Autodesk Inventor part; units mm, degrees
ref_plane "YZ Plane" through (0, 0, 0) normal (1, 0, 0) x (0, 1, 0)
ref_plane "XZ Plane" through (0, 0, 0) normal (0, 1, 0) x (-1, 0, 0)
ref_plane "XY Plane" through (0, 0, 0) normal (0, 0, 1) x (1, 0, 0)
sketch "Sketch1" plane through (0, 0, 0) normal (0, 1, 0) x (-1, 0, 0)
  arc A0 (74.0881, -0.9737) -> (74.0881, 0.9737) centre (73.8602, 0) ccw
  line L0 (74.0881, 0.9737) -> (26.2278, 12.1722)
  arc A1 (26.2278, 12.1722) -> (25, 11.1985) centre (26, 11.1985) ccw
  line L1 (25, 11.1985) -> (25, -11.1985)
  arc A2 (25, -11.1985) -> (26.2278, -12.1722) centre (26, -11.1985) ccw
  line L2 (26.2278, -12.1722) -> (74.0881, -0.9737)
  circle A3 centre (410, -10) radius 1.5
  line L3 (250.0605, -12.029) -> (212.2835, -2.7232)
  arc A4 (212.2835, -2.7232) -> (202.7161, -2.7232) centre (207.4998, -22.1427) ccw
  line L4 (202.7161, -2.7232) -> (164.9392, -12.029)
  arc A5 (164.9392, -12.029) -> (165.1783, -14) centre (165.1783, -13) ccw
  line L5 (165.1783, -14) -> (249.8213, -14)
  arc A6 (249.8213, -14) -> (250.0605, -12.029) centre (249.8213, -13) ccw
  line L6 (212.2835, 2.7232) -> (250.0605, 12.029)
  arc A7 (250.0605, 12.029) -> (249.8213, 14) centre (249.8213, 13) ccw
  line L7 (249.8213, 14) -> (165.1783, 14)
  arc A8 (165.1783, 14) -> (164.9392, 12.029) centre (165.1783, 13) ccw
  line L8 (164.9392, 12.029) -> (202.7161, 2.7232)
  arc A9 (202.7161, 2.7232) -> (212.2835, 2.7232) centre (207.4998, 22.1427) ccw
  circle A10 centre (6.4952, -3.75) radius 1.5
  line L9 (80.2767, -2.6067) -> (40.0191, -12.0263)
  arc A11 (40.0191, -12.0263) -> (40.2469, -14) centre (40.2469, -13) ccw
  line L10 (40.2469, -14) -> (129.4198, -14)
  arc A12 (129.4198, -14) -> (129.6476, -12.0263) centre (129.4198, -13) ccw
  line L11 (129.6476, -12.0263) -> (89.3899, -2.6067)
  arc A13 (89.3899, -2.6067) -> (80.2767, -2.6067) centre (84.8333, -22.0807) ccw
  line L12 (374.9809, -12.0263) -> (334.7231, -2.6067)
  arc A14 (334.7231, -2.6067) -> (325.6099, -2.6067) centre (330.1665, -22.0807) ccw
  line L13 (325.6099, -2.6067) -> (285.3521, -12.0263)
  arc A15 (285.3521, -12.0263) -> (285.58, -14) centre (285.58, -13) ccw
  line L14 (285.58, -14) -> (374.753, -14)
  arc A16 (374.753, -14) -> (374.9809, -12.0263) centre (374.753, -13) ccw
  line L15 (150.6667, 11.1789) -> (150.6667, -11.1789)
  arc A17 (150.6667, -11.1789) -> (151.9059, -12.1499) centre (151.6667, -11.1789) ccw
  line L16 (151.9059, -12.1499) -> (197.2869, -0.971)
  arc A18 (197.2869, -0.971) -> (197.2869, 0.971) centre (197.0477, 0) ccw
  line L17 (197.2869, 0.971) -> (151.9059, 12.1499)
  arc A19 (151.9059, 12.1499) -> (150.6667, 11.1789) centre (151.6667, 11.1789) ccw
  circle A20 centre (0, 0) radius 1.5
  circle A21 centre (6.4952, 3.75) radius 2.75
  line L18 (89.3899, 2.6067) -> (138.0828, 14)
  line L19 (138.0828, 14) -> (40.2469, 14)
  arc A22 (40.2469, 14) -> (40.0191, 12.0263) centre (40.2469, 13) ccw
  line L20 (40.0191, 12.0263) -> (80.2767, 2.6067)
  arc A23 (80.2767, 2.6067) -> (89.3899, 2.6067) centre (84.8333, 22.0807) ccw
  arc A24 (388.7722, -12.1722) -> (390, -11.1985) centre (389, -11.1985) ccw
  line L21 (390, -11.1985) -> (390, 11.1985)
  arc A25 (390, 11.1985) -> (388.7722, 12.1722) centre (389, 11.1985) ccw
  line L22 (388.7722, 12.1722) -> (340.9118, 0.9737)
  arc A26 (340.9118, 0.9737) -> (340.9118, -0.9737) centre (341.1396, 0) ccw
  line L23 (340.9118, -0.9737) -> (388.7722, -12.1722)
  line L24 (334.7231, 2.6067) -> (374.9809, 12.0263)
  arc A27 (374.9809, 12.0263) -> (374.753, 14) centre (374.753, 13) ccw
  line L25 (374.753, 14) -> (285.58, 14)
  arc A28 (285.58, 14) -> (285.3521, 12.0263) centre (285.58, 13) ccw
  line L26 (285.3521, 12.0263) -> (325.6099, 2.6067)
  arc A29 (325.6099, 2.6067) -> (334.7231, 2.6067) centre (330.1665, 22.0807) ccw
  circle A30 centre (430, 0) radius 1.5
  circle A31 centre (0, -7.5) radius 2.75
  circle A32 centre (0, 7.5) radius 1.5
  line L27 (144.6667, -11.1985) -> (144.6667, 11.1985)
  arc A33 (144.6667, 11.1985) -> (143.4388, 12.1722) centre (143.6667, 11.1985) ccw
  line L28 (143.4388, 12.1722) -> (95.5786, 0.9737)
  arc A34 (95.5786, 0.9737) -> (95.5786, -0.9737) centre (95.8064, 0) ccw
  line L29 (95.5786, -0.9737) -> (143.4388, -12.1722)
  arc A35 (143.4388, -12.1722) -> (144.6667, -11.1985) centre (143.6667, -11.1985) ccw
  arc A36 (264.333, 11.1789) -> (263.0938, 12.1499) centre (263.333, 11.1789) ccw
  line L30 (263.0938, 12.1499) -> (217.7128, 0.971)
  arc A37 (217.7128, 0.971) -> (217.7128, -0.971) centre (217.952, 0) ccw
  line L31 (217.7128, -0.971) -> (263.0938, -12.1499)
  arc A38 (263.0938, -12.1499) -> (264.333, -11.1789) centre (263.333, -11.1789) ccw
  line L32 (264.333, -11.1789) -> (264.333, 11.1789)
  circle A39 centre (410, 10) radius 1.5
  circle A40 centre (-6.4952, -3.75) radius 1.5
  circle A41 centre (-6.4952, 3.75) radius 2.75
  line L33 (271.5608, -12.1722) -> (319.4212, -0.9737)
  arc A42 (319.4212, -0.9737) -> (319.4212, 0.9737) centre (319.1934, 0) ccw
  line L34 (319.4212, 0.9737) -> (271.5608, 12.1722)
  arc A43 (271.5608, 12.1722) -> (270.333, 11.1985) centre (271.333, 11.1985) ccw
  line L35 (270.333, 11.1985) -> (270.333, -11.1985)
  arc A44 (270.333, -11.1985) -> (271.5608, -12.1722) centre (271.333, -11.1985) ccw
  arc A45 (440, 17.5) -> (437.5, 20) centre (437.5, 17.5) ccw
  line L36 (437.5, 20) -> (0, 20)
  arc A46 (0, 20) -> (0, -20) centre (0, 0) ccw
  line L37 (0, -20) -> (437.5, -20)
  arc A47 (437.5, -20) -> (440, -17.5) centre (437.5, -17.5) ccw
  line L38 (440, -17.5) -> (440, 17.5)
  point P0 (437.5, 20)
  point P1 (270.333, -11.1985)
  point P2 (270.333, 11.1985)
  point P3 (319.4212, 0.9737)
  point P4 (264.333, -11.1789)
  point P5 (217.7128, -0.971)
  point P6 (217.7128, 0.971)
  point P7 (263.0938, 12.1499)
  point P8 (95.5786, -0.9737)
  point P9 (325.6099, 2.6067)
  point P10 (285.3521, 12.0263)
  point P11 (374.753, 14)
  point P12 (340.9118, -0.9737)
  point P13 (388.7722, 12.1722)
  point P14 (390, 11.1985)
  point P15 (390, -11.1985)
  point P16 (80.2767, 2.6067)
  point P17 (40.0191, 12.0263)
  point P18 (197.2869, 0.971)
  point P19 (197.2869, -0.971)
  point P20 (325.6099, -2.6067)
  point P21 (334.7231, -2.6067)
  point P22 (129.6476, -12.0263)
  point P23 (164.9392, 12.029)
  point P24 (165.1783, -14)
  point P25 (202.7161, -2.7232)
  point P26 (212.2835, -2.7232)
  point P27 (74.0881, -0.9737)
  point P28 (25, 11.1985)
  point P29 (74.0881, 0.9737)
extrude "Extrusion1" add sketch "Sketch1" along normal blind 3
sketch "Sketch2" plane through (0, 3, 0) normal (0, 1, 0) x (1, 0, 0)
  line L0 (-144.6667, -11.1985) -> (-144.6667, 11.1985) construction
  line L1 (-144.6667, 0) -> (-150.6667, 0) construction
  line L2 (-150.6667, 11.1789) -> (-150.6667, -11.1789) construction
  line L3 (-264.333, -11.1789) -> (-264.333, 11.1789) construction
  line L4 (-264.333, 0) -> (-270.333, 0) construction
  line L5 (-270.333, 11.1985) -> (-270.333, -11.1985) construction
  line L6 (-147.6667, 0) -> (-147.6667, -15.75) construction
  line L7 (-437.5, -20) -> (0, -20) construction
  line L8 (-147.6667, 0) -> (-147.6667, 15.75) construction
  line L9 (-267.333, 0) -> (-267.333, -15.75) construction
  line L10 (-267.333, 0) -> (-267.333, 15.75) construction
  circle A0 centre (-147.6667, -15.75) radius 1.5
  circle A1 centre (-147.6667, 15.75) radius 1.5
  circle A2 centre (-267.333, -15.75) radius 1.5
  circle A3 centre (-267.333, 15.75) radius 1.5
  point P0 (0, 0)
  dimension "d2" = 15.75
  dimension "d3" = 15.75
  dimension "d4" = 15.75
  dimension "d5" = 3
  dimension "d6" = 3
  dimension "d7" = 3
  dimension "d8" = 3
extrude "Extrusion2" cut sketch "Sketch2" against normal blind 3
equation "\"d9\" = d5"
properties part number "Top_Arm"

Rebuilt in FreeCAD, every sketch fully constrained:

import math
import FreeCAD as App
import Part
import Sketcher
from FreeCAD import Vector
Q = App.Units.Quantity

doc = App.newDocument("Part")
params = doc.addObject("Spreadsheet::Sheet", "Params")
for row, (alias, value) in enumerate([
    ("sketch1_diameter", "3 mm"),
    ("sketch1_radius", "20 mm"),
    ("sketch1_radius2", "1 mm"),
    ("sketch1_diameter2", "5.5 mm"),
    ("sketch1_radius3", "2.5 mm"),
    ("pad1_length", "3 mm"),
    ("sketch2_diameter", "3 mm"),
    ("pocket1_length", "3 mm"),
], start=1):
    params.set(f"A{row}", alias)
    params.set(f"B{row}", "=" + value)
    params.setAlias(f"B{row}", alias)

body = doc.addObject("PartDesign::Body", "Body")

# Sketch on XZ plane
sketch1 = doc.addObject("Sketcher::SketchObject", "Sketch")
body.addObject(sketch1)
sketch1.AttachmentSupport = (doc.XZ_Plane, [""])
sketch1.MapMode = "FlatFace"
sketch1.addGeometry([
    Part.LineSegment(Vector(-440, -17.5, 0), Vector(-440, 17.5, 0)),  # 0
    Part.ArcOfCircle(Part.Circle(Vector(-437.5, 17.5, 0), Vector(0, 0, 1), 2.5), math.radians(90), math.radians(180)),  # 1
    Part.LineSegment(Vector(-437.5, 20, 0), Vector(0, 20, 0)),  # 2
    Part.ArcOfCircle(Part.Circle(Vector(0, 0, 0), Vector(0, 0, 1), 20), math.radians(-90), math.radians(90)),  # 3
    Part.LineSegment(Vector(0, -20, 0), Vector(-437.5, -20, 0)),  # 4
    Part.ArcOfCircle(Part.Circle(Vector(-437.5, -17.5, 0), Vector(0, 0, 1), 2.5), math.radians(180), math.radians(270)),  # 5
    Part.Circle(Vector(0, -7.5, 0), Vector(0, 0, 1), 2.75),  # 6
    Part.LineSegment(Vector(-40.0191, -12.0263, 0), Vector(-80.2767, -2.6067, 0)),  # 7
    Part.ArcOfCircle(Part.Circle(Vector(-84.8333, -22.0807, 0), Vector(0, 0, 1), 19.999982), math.radians(76.83064), math.radians(103.16936)),  # 8
    Part.LineSegment(Vector(-89.3899, -2.6067, 0), Vector(-129.6476, -12.0263, 0)),  # 9
    Part.ArcOfCircle(Part.Circle(Vector(-129.4198, -13, 0), Vector(0, 0, 1), 1), math.radians(103.167687), math.radians(270)),  # 10
    Part.LineSegment(Vector(-129.4198, -14, 0), Vector(-40.2469, -14, 0)),  # 11
    Part.ArcOfCircle(Part.Circle(Vector(-40.2469, -13, 0), Vector(0, 0, 1), 0.999992), math.radians(-90), math.radians(76.832313)),  # 12
    Part.Circle(Vector(6.4952, -3.75, 0), Vector(0, 0, 1), 1.5),  # 13
    Part.Circle(Vector(-6.4952, -3.75, 0), Vector(0, 0, 1), 1.5),  # 14
    Part.ArcOfCircle(Part.Circle(Vector(-73.8602, 0, 0), Vector(0, 0, 1), 1.000015), math.radians(103.173266), math.radians(256.826734)),  # 15
    Part.LineSegment(Vector(-74.0881, -0.9737, 0), Vector(-26.2278, -12.1722, 0)),  # 16
    Part.ArcOfCircle(Part.Circle(Vector(-26, -11.1985, 0), Vector(0, 0, 1), 1), math.radians(-103.167687), math.radians(0)),  # 17
    Part.LineSegment(Vector(-25, -11.1985, 0), Vector(-25, 11.1985, 0)),  # 18
    Part.ArcOfCircle(Part.Circle(Vector(-26, 11.1985, 0), Vector(0, 0, 1), 0.999992), math.radians(0), math.radians(103.167687)),  # 19
    Part.LineSegment(Vector(-26.2278, 12.1722, 0), Vector(-74.0881, 0.9737, 0)),  # 20
    Part.LineSegment(Vector(-212.2835, -2.7232, 0), Vector(-250.0605, -12.029, 0)),  # 21
    Part.ArcOfCircle(Part.Circle(Vector(-249.8213, -13, 0), Vector(0, 0, 1), 1), math.radians(103.838922), math.radians(270)),  # 22
    Part.LineSegment(Vector(-249.8213, -14, 0), Vector(-165.1783, -14, 0)),  # 23
    Part.ArcOfCircle(Part.Circle(Vector(-165.1783, -13, 0), Vector(0, 0, 1), 1.000005), math.radians(-90), math.radians(76.166641)),  # 24
    Part.LineSegment(Vector(-164.9392, -12.029, 0), Vector(-202.7161, -2.7232, 0)),  # 25
    Part.ArcOfCircle(Part.Circle(Vector(-207.4998, -22.1427, 0), Vector(0, 0, 1), 20.000019), math.radians(76.16157), math.radians(103.83843)),  # 26
    Part.LineSegment(Vector(-144.6667, 11.1985, 0), Vector(-144.6667, -11.1985, 0)),  # 27
    Part.ArcOfCircle(Part.Circle(Vector(-143.6667, -11.1985, 0), Vector(0, 0, 1), 1.000015), math.radians(180), math.radians(283.173266)),  # 28
    Part.LineSegment(Vector(-143.4388, -12.1722, 0), Vector(-95.5786, -0.9737, 0)),  # 29
    Part.ArcOfCircle(Part.Circle(Vector(-95.8064, 0, 0), Vector(0, 0, 1), 0.999992), math.radians(-76.832313), math.radians(76.832313)),  # 30
    Part.LineSegment(Vector(-95.5786, 0.9737, 0), Vector(-143.4388, 12.1722, 0)),  # 31
    Part.ArcOfCircle(Part.Circle(Vector(-143.6667, 11.1985, 0), Vector(0, 0, 1), 1), math.radians(76.826734), math.radians(180)),  # 32
    Part.ArcOfCircle(Part.Circle(Vector(-263.333, 11.1789, 0), Vector(0, 0, 1), 1), math.radians(76.161078), math.radians(180)),  # 33
    Part.LineSegment(Vector(-264.333, 11.1789, 0), Vector(-264.333, -11.1789, 0)),  # 34
    Part.ArcOfCircle(Part.Circle(Vector(-263.333, -11.1789, 0), Vector(0, 0, 1), 1.000029), math.radians(180), math.radians(283.838922)),  # 35
    Part.LineSegment(Vector(-263.0938, -12.1499, 0), Vector(-217.7128, -0.971, 0)),  # 36
    Part.ArcOfCircle(Part.Circle(Vector(-217.952, 0, 0), Vector(0, 0, 1), 1.000029), math.radians(-76.161078), math.radians(76.161078)),  # 37
    Part.LineSegment(Vector(-217.7128, 0.971, 0), Vector(-263.0938, 12.1499, 0)),  # 38
    Part.LineSegment(Vector(-319.4212, -0.9737, 0), Vector(-271.5608, -12.1722, 0)),  # 39
    Part.ArcOfCircle(Part.Circle(Vector(-271.333, -11.1985, 0), Vector(0, 0, 1), 1), math.radians(-103.167687), math.radians(0)),  # 40
    Part.LineSegment(Vector(-270.333, -11.1985, 0), Vector(-270.333, 11.1985, 0)),  # 41
    Part.ArcOfCircle(Part.Circle(Vector(-271.333, 11.1985, 0), Vector(0, 0, 1), 0.999992), math.radians(0), math.radians(103.167687)),  # 42
    Part.LineSegment(Vector(-271.5608, 12.1722, 0), Vector(-319.4212, 0.9737, 0)),  # 43
    Part.ArcOfCircle(Part.Circle(Vector(-319.1934, 0, 0), Vector(0, 0, 1), 0.999992), math.radians(103.167687), math.radians(256.832313)),  # 44
    Part.LineSegment(Vector(-334.7231, -2.6067, 0), Vector(-374.9809, -12.0263, 0)),  # 45
    Part.ArcOfCircle(Part.Circle(Vector(-374.753, -13, 0), Vector(0, 0, 1), 1), math.radians(103.173266), math.radians(270)),  # 46
    Part.LineSegment(Vector(-374.753, -14, 0), Vector(-285.58, -14, 0)),  # 47
    Part.ArcOfCircle(Part.Circle(Vector(-285.58, -13, 0), Vector(0, 0, 1), 1.000015), math.radians(-90), math.radians(76.826734)),  # 48
    Part.LineSegment(Vector(-285.3521, -12.0263, 0), Vector(-325.6099, -2.6067, 0)),  # 49
    Part.ArcOfCircle(Part.Circle(Vector(-330.1665, -22.0807, 0), Vector(0, 0, 1), 19.999982), math.radians(76.83064), math.radians(103.16936)),  # 50
    Part.Circle(Vector(-410, -10, 0), Vector(0, 0, 1), 1.5),  # 51
    Part.Circle(Vector(0, 0, 0), Vector(0, 0, 1), 1.5),  # 52
    Part.Circle(Vector(6.4952, 3.75, 0), Vector(0, 0, 1), 2.75),  # 53
    Part.Circle(Vector(-6.4952, 3.75, 0), Vector(0, 0, 1), 2.75),  # 54
    Part.Circle(Vector(0, 7.5, 0), Vector(0, 0, 1), 1.5),  # 55
    Part.LineSegment(Vector(-138.0828, 14, 0), Vector(-89.3899, 2.6067, 0)),  # 56
    Part.ArcOfCircle(Part.Circle(Vector(-84.8333, 22.0807, 0), Vector(0, 0, 1), 19.999982), math.radians(-103.16936), math.radians(-76.83064)),  # 57
    Part.LineSegment(Vector(-80.2767, 2.6067, 0), Vector(-40.0191, 12.0263, 0)),  # 58
    Part.ArcOfCircle(Part.Circle(Vector(-40.2469, 13, 0), Vector(0, 0, 1), 1), math.radians(-76.832313), math.radians(90)),  # 59
    Part.LineSegment(Vector(-40.2469, 14, 0), Vector(-138.0828, 14, 0)),  # 60
    Part.LineSegment(Vector(-150.6667, -11.1789, 0), Vector(-150.6667, 11.1789, 0)),  # 61
    Part.ArcOfCircle(Part.Circle(Vector(-151.6667, 11.1789, 0), Vector(0, 0, 1), 1.000029), math.radians(0), math.radians(103.838922)),  # 62
    Part.LineSegment(Vector(-151.9059, 12.1499, 0), Vector(-197.2869, 0.971, 0)),  # 63
    Part.ArcOfCircle(Part.Circle(Vector(-197.0477, 0, 0), Vector(0, 0, 1), 1.000029), math.radians(103.838922), math.radians(256.161078)),  # 64
    Part.LineSegment(Vector(-197.2869, -0.971, 0), Vector(-151.9059, -12.1499, 0)),  # 65
    Part.ArcOfCircle(Part.Circle(Vector(-151.6667, -11.1789, 0), Vector(0, 0, 1), 1), math.radians(-103.838922), math.radians(0)),  # 66
    Part.LineSegment(Vector(-250.0605, 12.029, 0), Vector(-212.2835, 2.7232, 0)),  # 67
    Part.ArcOfCircle(Part.Circle(Vector(-207.4998, 22.1427, 0), Vector(0, 0, 1), 20.000019), math.radians(-103.83843), math.radians(-76.16157)),  # 68
    Part.LineSegment(Vector(-202.7161, 2.7232, 0), Vector(-164.9392, 12.029, 0)),  # 69
    Part.ArcOfCircle(Part.Circle(Vector(-165.1783, 13, 0), Vector(0, 0, 1), 1), math.radians(-76.166641), math.radians(90)),  # 70
    Part.LineSegment(Vector(-165.1783, 14, 0), Vector(-249.8213, 14, 0)),  # 71
    Part.ArcOfCircle(Part.Circle(Vector(-249.8213, 13, 0), Vector(0, 0, 1), 1.000029), math.radians(90), math.radians(256.161078)),  # 72
    Part.ArcOfCircle(Part.Circle(Vector(-389, -11.1985, 0), Vector(0, 0, 1), 0.999992), math.radians(180), math.radians(283.167687)),  # 73
    Part.LineSegment(Vector(-388.7722, -12.1722, 0), Vector(-340.9118, -0.9737, 0)),  # 74
    Part.ArcOfCircle(Part.Circle(Vector(-341.1396, 0, 0), Vector(0, 0, 1), 0.999992), math.radians(-76.832313), math.radians(76.832313)),  # 75
    Part.LineSegment(Vector(-340.9118, 0.9737, 0), Vector(-388.7722, 12.1722, 0)),  # 76
    Part.ArcOfCircle(Part.Circle(Vector(-389, 11.1985, 0), Vector(0, 0, 1), 1), math.radians(76.832313), math.radians(180)),  # 77
    Part.LineSegment(Vector(-390, 11.1985, 0), Vector(-390, -11.1985, 0)),  # 78
    Part.Circle(Vector(-430, 0, 0), Vector(0, 0, 1), 1.5),  # 79
    Part.LineSegment(Vector(-374.9809, 12.0263, 0), Vector(-334.7231, 2.6067, 0)),  # 80
    Part.ArcOfCircle(Part.Circle(Vector(-330.1665, 22.0807, 0), Vector(0, 0, 1), 19.999982), math.radians(-103.16936), math.radians(-76.83064)),  # 81
    Part.LineSegment(Vector(-325.6099, 2.6067, 0), Vector(-285.3521, 12.0263, 0)),  # 82
    Part.ArcOfCircle(Part.Circle(Vector(-285.58, 13, 0), Vector(0, 0, 1), 1), math.radians(-76.826734), math.radians(90)),  # 83
    Part.LineSegment(Vector(-285.58, 14, 0), Vector(-374.753, 14, 0)),  # 84
    Part.ArcOfCircle(Part.Circle(Vector(-374.753, 13, 0), Vector(0, 0, 1), 1.000015), math.radians(90), math.radians(256.826734)),  # 85
    Part.Circle(Vector(-410, 10, 0), Vector(0, 0, 1), 1.5),  # 86
], False)
sketch1.addConstraint([
    Sketcher.Constraint("Tangent", 0, 2, 1, 2),
    Sketcher.Constraint("Tangent", 1, 1, 2, 1),
    Sketcher.Constraint("Tangent", 2, 2, 3, 2),
    Sketcher.Constraint("Tangent", 3, 1, 4, 1),
    Sketcher.Constraint("Tangent", 4, 2, 5, 2),
    Sketcher.Constraint("Tangent", 5, 1, 0, 1),
    Sketcher.Constraint("Tangent", 7, 2, 8, 1),
    Sketcher.Constraint("Tangent", 8, 2, 9, 1),
    Sketcher.Constraint("Tangent", 9, 2, 10, 1),
    Sketcher.Constraint("Tangent", 10, 2, 11, 1),
    Sketcher.Constraint("Tangent", 11, 2, 12, 1),
    Sketcher.Constraint("Tangent", 12, 2, 7, 1),
    Sketcher.Constraint("Tangent", 15, 2, 16, 1),
    Sketcher.Constraint("Tangent", 16, 2, 17, 1),
    Sketcher.Constraint("Tangent", 17, 2, 18, 1),
    Sketcher.Constraint("Tangent", 18, 2, 19, 1),
    Sketcher.Constraint("Tangent", 19, 2, 20, 1),
    Sketcher.Constraint("Tangent", 20, 2, 15, 1),
    Sketcher.Constraint("Tangent", 21, 2, 22, 1),
    Sketcher.Constraint("Tangent", 22, 2, 23, 1),
    Sketcher.Constraint("Tangent", 23, 2, 24, 1),
    Sketcher.Constraint("Tangent", 24, 2, 25, 1),
    Sketcher.Constraint("Tangent", 25, 2, 26, 1),
    Sketcher.Constraint("Tangent", 26, 2, 21, 1),
    Sketcher.Constraint("Tangent", 27, 2, 28, 1),
    Sketcher.Constraint("Tangent", 28, 2, 29, 1),
    Sketcher.Constraint("Tangent", 29, 2, 30, 1),
    Sketcher.Constraint("Tangent", 30, 2, 31, 1),
    Sketcher.Constraint("Tangent", 31, 2, 32, 1),
    Sketcher.Constraint("Tangent", 32, 2, 27, 1),
    Sketcher.Constraint("Tangent", 33, 2, 34, 1),
    Sketcher.Constraint("Tangent", 34, 2, 35, 1),
    Sketcher.Constraint("Tangent", 35, 2, 36, 1),
    Sketcher.Constraint("Tangent", 36, 2, 37, 1),
    Sketcher.Constraint("Tangent", 37, 2, 38, 1),
    Sketcher.Constraint("Tangent", 38, 2, 33, 1),
    Sketcher.Constraint("Tangent", 39, 2, 40, 1),
    Sketcher.Constraint("Tangent", 40, 2, 41, 1),
    Sketcher.Constraint("Tangent", 41, 2, 42, 1),
    Sketcher.Constraint("Tangent", 42, 2, 43, 1),
    Sketcher.Constraint("Tangent", 43, 2, 44, 1),
    Sketcher.Constraint("Tangent", 44, 2, 39, 1),
    Sketcher.Constraint("Tangent", 45, 2, 46, 1),
    Sketcher.Constraint("Tangent", 46, 2, 47, 1),
    Sketcher.Constraint("Tangent", 47, 2, 48, 1),
    Sketcher.Constraint("Tangent", 48, 2, 49, 1),
    Sketcher.Constraint("Tangent", 49, 2, 50, 1),
    Sketcher.Constraint("Tangent", 50, 2, 45, 1),
    Sketcher.Constraint("Tangent", 56, 2, 57, 1),
    Sketcher.Constraint("Tangent", 57, 2, 58, 1),
    Sketcher.Constraint("Tangent", 58, 2, 59, 1),
    Sketcher.Constraint("Tangent", 59, 2, 60, 1),
    Sketcher.Constraint("Coincident", 60, 2, 56, 1),
    Sketcher.Constraint("Tangent", 61, 2, 62, 1),
    Sketcher.Constraint("Tangent", 62, 2, 63, 1),
    Sketcher.Constraint("Tangent", 63, 2, 64, 1),
    Sketcher.Constraint("Tangent", 64, 2, 65, 1),
    Sketcher.Constraint("Tangent", 65, 2, 66, 1),
    Sketcher.Constraint("Tangent", 66, 2, 61, 1),
    Sketcher.Constraint("Tangent", 67, 2, 68, 1),
    Sketcher.Constraint("Tangent", 68, 2, 69, 1),
    Sketcher.Constraint("Tangent", 69, 2, 70, 1),
    Sketcher.Constraint("Tangent", 70, 2, 71, 1),
    Sketcher.Constraint("Tangent", 71, 2, 72, 1),
    Sketcher.Constraint("Tangent", 72, 2, 67, 1),
    Sketcher.Constraint("Tangent", 73, 2, 74, 1),
    Sketcher.Constraint("Tangent", 74, 2, 75, 1),
    Sketcher.Constraint("Tangent", 75, 2, 76, 1),
    Sketcher.Constraint("Tangent", 76, 2, 77, 1),
    Sketcher.Constraint("Tangent", 77, 2, 78, 1),
    Sketcher.Constraint("Tangent", 78, 2, 73, 1),
    Sketcher.Constraint("Tangent", 80, 2, 81, 1),
    Sketcher.Constraint("Tangent", 81, 2, 82, 1),
    Sketcher.Constraint("Tangent", 82, 2, 83, 1),
    Sketcher.Constraint("Tangent", 83, 2, 84, 1),
    Sketcher.Constraint("Tangent", 84, 2, 85, 1),
    Sketcher.Constraint("Tangent", 85, 2, 80, 1),
    Sketcher.Constraint("Vertical", 0),
    Sketcher.Constraint("Horizontal", 2),
    Sketcher.Constraint("Horizontal", 4),
    Sketcher.Constraint("Horizontal", 11),
    Sketcher.Constraint("Vertical", 18),
    Sketcher.Constraint("Horizontal", 23),
    Sketcher.Constraint("Vertical", 27),
    Sketcher.Constraint("Vertical", 34),
    Sketcher.Constraint("Vertical", 41),
    Sketcher.Constraint("Horizontal", 47),
    Sketcher.Constraint("Horizontal", 60),
    Sketcher.Constraint("Vertical", 61),
    Sketcher.Constraint("Horizontal", 71),
    Sketcher.Constraint("Vertical", 78),
    Sketcher.Constraint("Horizontal", 84),
    Sketcher.Constraint("Coincident", 3, 3, -1, 1),
    Sketcher.Constraint("Coincident", 52, 3, -1, 1),
    Sketcher.Constraint("Equal", 1, 5),
    Sketcher.Constraint("Equal", 3, 8),
    Sketcher.Constraint("Equal", 10, 12),
    Sketcher.Constraint("Equal", 13, 14),
    Sketcher.Constraint("Equal", 12, 15),
    Sketcher.Constraint("Equal", 15, 17),
    Sketcher.Constraint("Equal", 17, 19),
    Sketcher.Constraint("Equal", 19, 22),
    Sketcher.Constraint("Equal", 22, 24),
    Sketcher.Constraint("Equal", 8, 26),
    Sketcher.Constraint("Equal", 24, 28),
    Sketcher.Constraint("Equal", 28, 30),
    Sketcher.Constraint("Equal", 30, 32),
    Sketcher.Constraint("Equal", 32, 33),
    Sketcher.Constraint("Equal", 33, 35),
    Sketcher.Constraint("Equal", 35, 37),
    Sketcher.Constraint("Equal", 37, 40),
    Sketcher.Constraint("Equal", 40, 42),
    Sketcher.Constraint("Equal", 42, 44),
    Sketcher.Constraint("Equal", 44, 46),
    Sketcher.Constraint("Equal", 46, 48),
    Sketcher.Constraint("Equal", 26, 50),
    Sketcher.Constraint("Equal", 14, 51),
    Sketcher.Constraint("Equal", 51, 52),
    Sketcher.Constraint("Equal", 6, 53),
    Sketcher.Constraint("Equal", 53, 54),
    Sketcher.Constraint("Equal", 52, 55),
    Sketcher.Constraint("Equal", 50, 57),
    Sketcher.Constraint("Equal", 48, 59),
    Sketcher.Constraint("Equal", 59, 62),
    Sketcher.Constraint("Equal", 62, 64),
    Sketcher.Constraint("Equal", 64, 66),
    Sketcher.Constraint("Equal", 57, 68),
    Sketcher.Constraint("Equal", 66, 70),
    Sketcher.Constraint("Equal", 70, 72),
    Sketcher.Constraint("Equal", 72, 73),
    Sketcher.Constraint("Equal", 73, 75),
    Sketcher.Constraint("Equal", 75, 77),
    Sketcher.Constraint("Equal", 55, 79),
    Sketcher.Constraint("Equal", 68, 81),
    Sketcher.Constraint("Equal", 77, 83),
    Sketcher.Constraint("Equal", 83, 85),
    Sketcher.Constraint("Equal", 79, 86),
    Sketcher.Constraint("Symmetric", 14, 3, 53, 3, -1, 1),
    Sketcher.Constraint("Symmetric", 13, 3, 54, 3, -1, 1),
    Sketcher.Constraint("Symmetric", 6, 3, 55, 3, -1, 1),
    Sketcher.Constraint("Symmetric", 13, 3, 14, 3, -2),
    Sketcher.Constraint("Symmetric", 8, 3, 57, 3, -1),
    Sketcher.Constraint("Symmetric", 12, 3, 59, 3, -1),
    Sketcher.Constraint("Symmetric", 26, 3, 68, 3, -1),
    Sketcher.Constraint("Symmetric", 24, 3, 70, 3, -1),
    Sketcher.Constraint("Symmetric", 50, 3, 81, 3, -1),
    Sketcher.Constraint("Symmetric", 48, 3, 83, 3, -1),
    Sketcher.Constraint("Symmetric", 51, 3, 86, 3, -1),
    Sketcher.Constraint("Symmetric", 16, 2, 19, 2, -1),
    Sketcher.Constraint("Symmetric", 29, 2, 30, 2, -1),
    Sketcher.Constraint("Symmetric", 36, 2, 37, 2, -1),
    Sketcher.Constraint("Symmetric", 39, 2, 42, 2, -1),
    Sketcher.Constraint("Symmetric", 63, 2, 64, 2, -1),
    Sketcher.Constraint("Symmetric", 74, 2, 75, 2, -1),
    Sketcher.Constraint("PointOnObject", 6, 3, -2),
    Sketcher.Constraint("PointOnObject", 79, 3, -1),
    Sketcher.Constraint("Parallel", 7, 16),
    Sketcher.Constraint("Parallel", 9, 20),
    Sketcher.Constraint("Parallel", 20, 29),
    Sketcher.Constraint("Parallel", 21, 36),
    Sketcher.Constraint("Parallel", 25, 38),
    Sketcher.Constraint("Parallel", 31, 39),
    Sketcher.Constraint("Parallel", 43, 45),
    Sketcher.Constraint("Parallel", 39, 49),
    Sketcher.Constraint("Parallel", 49, 56),
    Sketcher.Constraint("Parallel", 36, 63),
    Sketcher.Constraint("Parallel", 65, 67),
    Sketcher.Constraint("Parallel", 58, 74),
    Sketcher.Constraint("Parallel", 76, 80),
    Sketcher.Constraint("Horizontal", 12, 3, 22, 3),
    Sketcher.Constraint("Horizontal", 17, 3, 28, 3),
    Sketcher.Constraint("Horizontal", 28, 3, 40, 3),
    Sketcher.Constraint("Horizontal", 24, 3, 46, 3),
    Sketcher.Constraint("Horizontal", 8, 3, 50, 3),
    Sketcher.Constraint("Horizontal", 33, 3, 62, 3),
    Sketcher.Constraint("Horizontal", 40, 3, 73, 3),
    Sketcher.Constraint("Diameter", 13, 3.0),
    Sketcher.Constraint("Radius", 3, 20.0),
    Sketcher.Constraint("Radius", 10, 1.0),
    Sketcher.Constraint("Diameter", 6, 5.5),
    Sketcher.Constraint("Radius", 1, 2.5),
    Sketcher.Constraint("DistanceX", 2, 1, 2, 2, 437.5),
    Sketcher.Constraint("DistanceY", 10, 3, -1, 1, 13.0),
    Sketcher.Constraint("DistanceX", 17, 3, -1, 1, 26.0),
    Sketcher.Constraint("DistanceX", 51, 3, -1, 1, 410.0),
    Sketcher.Constraint("DistanceY", 51, 3, -1, 1, 10.0),
    Sketcher.Constraint("DistanceX", 73, 3, -1, 1, 389.0),
    Sketcher.Constraint("DistanceX", 79, 3, -1, 1, 430.0),
    Sketcher.Constraint("DistanceY", 6, 3, -1, 1, 7.5),
    Sketcher.Constraint("Angle", 7, Q("166.8307 deg")),
    Sketcher.Constraint("DistanceX", 11, 1, 11, 2, 89.173),
    Sketcher.Constraint("DistanceX", 23, 1, 23, 2, 84.643),
    Sketcher.Constraint("DistanceY", 18, 1, 18, 2, 22.397),
    Sketcher.Constraint("DistanceY", 13, 3, -1, 1, 3.75),
    Sketcher.Constraint("DistanceX", 48, 3, -1, 1, 285.58),
    Sketcher.Constraint("DistanceX", 8, 2, -1, 1, 89.39),
    Sketcher.Constraint("DistanceY", 35, 2, -1, 1, 12.15),
    Sketcher.Constraint("DistanceX", 33, 3, -1, 1, 263.333),
    Sketcher.Constraint("DistanceX", 37, 3, -1, 1, 217.952),
    Sketcher.Constraint("DistanceX", 40, 3, -1, 1, 271.333),
    Sketcher.Constraint("DistanceX", 25, 2, -1, 1, 202.716),
    Sketcher.Constraint("DistanceX", 62, 2, -1, 1, 151.906),
    Sketcher.Constraint("DistanceX", -1, 1, 13, 3, 6.4952),
    Sketcher.Constraint("DistanceX", 28, 3, -1, 1, 143.6667),
])
sketch1.setExpression("Constraints[176]", "Params.sketch1_diameter")
sketch1.setExpression("Constraints[177]", "Params.sketch1_radius")
sketch1.setExpression("Constraints[178]", "Params.sketch1_radius2")
sketch1.setExpression("Constraints[179]", "Params.sketch1_diameter2")
sketch1.setExpression("Constraints[180]", "Params.sketch1_radius3")
pad1 = doc.addObject("PartDesign::Pad", "Pad")
body.addObject(pad1)
pad1.Profile = sketch1
pad1.setExpression("Length", "Params.pad1_length")
pad1.Reversed = True

# Sketch on XZ plane
sketch2 = doc.addObject("Sketcher::SketchObject", "Sketch001")
body.addObject(sketch2)
sketch2.AttachmentSupport = (doc.XZ_Plane, [""])
sketch2.MapMode = "FlatFace"
sketch2.AttachmentOffset = App.Placement(Vector(0, 0, -3), App.Rotation())
sketch2.addGeometry([
    Part.Circle(Vector(-147.6667, 15.75, 0), Vector(0, 0, 1), 1.5),
    Part.Circle(Vector(-147.6667, -15.75, 0), Vector(0, 0, 1), 1.5),
    Part.Circle(Vector(-267.333, 15.75, 0), Vector(0, 0, 1), 1.5),
    Part.Circle(Vector(-267.333, -15.75, 0), Vector(0, 0, 1), 1.5),
], False)
sketch2.addConstraint([
    Sketcher.Constraint("Equal", 0, 1),
    Sketcher.Constraint("Equal", 1, 2),
    Sketcher.Constraint("Equal", 2, 3),
    Sketcher.Constraint("Symmetric", 0, 3, 1, 3, -1),
    Sketcher.Constraint("Symmetric", 2, 3, 3, 3, -1),
    Sketcher.Constraint("Horizontal", 0, 3, 2, 3),
    Sketcher.Constraint("Diameter", 0, 3.0),
    Sketcher.Constraint("DistanceY", -1, 1, 0, 3, 15.75),
    Sketcher.Constraint("DistanceX", 2, 3, -1, 1, 267.333),
    Sketcher.Constraint("DistanceX", 0, 3, -1, 1, 147.6667),
])
sketch2.setExpression("Constraints[6]", "Params.sketch2_diameter")
pocket1 = doc.addObject("PartDesign::Pocket", "Pocket")
body.addObject(pocket1)
pocket1.Profile = sketch2
pocket1.setExpression("Length", "Params.pocket1_length")
pocket1.Reversed = True

doc.recompute()
